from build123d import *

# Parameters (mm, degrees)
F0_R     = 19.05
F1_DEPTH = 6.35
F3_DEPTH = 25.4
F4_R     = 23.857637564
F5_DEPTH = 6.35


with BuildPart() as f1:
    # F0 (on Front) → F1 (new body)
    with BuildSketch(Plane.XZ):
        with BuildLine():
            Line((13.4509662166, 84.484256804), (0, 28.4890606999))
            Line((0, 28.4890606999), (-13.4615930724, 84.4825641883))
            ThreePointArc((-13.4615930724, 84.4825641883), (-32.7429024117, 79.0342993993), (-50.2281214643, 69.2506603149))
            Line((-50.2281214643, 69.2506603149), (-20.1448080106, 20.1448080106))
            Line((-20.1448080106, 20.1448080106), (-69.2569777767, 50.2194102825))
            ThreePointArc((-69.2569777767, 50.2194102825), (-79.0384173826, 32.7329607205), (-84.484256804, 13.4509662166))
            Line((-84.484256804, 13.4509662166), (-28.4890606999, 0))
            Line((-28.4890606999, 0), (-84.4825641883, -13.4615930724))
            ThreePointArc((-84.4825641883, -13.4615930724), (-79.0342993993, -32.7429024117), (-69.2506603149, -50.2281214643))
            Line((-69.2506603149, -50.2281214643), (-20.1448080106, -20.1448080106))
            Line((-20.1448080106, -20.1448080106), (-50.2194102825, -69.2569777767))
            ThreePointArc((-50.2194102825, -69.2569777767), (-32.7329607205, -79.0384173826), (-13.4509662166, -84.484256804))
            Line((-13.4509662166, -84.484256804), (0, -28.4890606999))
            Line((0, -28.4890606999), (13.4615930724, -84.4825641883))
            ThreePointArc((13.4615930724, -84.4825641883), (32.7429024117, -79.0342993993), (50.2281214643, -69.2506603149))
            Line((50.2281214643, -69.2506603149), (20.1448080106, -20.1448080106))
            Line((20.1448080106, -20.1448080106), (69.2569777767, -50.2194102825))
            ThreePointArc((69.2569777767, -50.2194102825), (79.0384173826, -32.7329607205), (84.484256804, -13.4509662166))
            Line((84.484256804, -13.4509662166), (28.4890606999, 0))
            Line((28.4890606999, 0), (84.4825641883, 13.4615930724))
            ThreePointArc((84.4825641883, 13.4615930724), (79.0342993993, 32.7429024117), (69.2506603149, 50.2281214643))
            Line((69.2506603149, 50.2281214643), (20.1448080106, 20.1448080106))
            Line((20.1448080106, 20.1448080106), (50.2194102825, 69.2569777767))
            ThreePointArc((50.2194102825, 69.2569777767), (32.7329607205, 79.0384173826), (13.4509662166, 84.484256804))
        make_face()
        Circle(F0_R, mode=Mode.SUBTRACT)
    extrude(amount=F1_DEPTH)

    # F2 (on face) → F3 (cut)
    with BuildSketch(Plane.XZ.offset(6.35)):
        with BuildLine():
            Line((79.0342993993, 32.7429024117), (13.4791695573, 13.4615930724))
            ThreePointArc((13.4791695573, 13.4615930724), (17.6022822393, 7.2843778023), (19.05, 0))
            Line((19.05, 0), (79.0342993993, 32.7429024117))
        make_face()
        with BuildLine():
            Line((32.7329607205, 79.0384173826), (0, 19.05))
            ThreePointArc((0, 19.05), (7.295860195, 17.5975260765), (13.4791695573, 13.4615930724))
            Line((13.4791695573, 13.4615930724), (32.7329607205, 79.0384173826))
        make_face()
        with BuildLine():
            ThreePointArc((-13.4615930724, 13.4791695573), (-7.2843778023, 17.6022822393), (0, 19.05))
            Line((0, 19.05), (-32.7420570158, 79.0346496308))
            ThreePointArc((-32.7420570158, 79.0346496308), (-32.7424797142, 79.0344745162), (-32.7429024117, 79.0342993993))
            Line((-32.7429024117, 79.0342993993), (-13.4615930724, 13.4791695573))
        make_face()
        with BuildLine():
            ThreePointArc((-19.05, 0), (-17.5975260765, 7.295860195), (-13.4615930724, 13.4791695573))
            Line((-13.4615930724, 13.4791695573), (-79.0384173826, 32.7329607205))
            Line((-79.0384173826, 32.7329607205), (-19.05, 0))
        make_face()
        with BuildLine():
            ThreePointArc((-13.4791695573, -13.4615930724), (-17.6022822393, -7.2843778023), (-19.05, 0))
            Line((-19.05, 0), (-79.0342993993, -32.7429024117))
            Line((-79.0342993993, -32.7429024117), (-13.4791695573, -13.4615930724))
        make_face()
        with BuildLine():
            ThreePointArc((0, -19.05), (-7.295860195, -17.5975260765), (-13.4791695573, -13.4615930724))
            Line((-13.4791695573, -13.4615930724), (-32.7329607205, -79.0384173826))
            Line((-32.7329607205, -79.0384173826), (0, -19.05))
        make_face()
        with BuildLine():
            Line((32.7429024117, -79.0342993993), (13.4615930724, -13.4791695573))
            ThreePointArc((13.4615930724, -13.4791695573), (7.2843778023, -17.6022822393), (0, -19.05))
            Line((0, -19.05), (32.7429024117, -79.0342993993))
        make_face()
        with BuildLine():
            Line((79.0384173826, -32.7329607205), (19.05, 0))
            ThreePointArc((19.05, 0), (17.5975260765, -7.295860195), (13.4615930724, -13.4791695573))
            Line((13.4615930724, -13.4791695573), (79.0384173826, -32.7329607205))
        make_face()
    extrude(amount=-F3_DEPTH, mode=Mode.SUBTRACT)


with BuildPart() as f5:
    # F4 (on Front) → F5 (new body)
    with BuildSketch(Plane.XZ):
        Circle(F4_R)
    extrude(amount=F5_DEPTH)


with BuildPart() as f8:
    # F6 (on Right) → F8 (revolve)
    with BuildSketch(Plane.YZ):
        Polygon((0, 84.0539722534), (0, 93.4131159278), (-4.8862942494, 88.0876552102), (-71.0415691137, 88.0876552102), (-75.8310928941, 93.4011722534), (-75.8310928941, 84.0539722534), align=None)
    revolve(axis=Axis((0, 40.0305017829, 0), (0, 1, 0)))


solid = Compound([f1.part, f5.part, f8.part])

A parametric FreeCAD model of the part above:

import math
import FreeCAD as App
import Part
import Sketcher

V = App.Vector
Q = App.Units.Quantity

doc = App.newDocument("Part")
body = doc.addObject("PartDesign::Body", "Body")
body.AllowCompound = True

# Sketch on XZ plane
sketch1 = doc.addObject("Sketcher::SketchObject", "Sketch")
body.addObject(sketch1)
sketch1.AttachmentSupport = (doc.XZ_Plane, [""])
sketch1.MapMode = "FlatFace"
sketch1.addGeometry(Part.LineSegment(V(13.450966, 84.484257, 0), V(0, 28.489061, 0)), False)
sketch1.addGeometry(Part.LineSegment(V(0, 28.489061, 0), V(-13.461593, 84.482564, 0)), False)
sketch1.addGeometry(Part.ArcOfCircle(Part.Circle(V(0, 0, 0), V(0, 0, 1), 85.548338), math.radians(99.053495), math.radians(125.953712)), False)
sketch1.addGeometry(Part.LineSegment(V(-50.228121, 69.25066, 0), V(-20.144808, 20.144808, 0)), False)
sketch1.addGeometry(Part.LineSegment(V(-20.144808, 20.144808, 0), V(-69.256978, 50.21941, 0)), False)
sketch1.addGeometry(Part.ArcOfCircle(Part.Circle(V(0, 0, 0), V(0, 0, 1), 85.548338), math.radians(144.053495), math.radians(170.953712)), False)
sketch1.addGeometry(Part.LineSegment(V(-84.484257, 13.450966, 0), V(-28.489061, 0, 0)), False)
sketch1.addGeometry(Part.LineSegment(V(-28.489061, 0, 0), V(-84.482564, -13.461593, 0)), False)
sketch1.addGeometry(Part.ArcOfCircle(Part.Circle(V(0, 0, 0), V(0, 0, 1), 85.548338), math.radians(-170.946505), math.radians(-144.046288)), False)
sketch1.addGeometry(Part.LineSegment(V(-69.25066, -50.228121, 0), V(-20.144808, -20.144808, 0)), False)
sketch1.addGeometry(Part.LineSegment(V(-20.144808, -20.144808, 0), V(-50.21941, -69.256978, 0)), False)
sketch1.addGeometry(Part.ArcOfCircle(Part.Circle(V(0, 0, 0), V(0, 0, 1), 85.548338), math.radians(-125.946505), math.radians(-99.046288)), False)
sketch1.addGeometry(Part.LineSegment(V(-13.450966, -84.484257, 0), V(0, -28.489061, 0)), False)
sketch1.addGeometry(Part.LineSegment(V(0, -28.489061, 0), V(13.461593, -84.482564, 0)), False)
sketch1.addGeometry(Part.ArcOfCircle(Part.Circle(V(0, 0, 0), V(0, 0, 1), 85.548338), math.radians(-80.946505), math.radians(-54.046288)), False)
sketch1.addGeometry(Part.LineSegment(V(50.228121, -69.25066, 0), V(20.144808, -20.144808, 0)), False)
sketch1.addGeometry(Part.LineSegment(V(20.144808, -20.144808, 0), V(69.256978, -50.21941, 0)), False)
sketch1.addGeometry(Part.ArcOfCircle(Part.Circle(V(0, 0, 0), V(0, 0, 1), 85.548338), math.radians(-35.946505), math.radians(-9.046288)), False)
sketch1.addGeometry(Part.LineSegment(V(84.484257, -13.450966, 0), V(28.489061, 0, 0)), False)
sketch1.addGeometry(Part.LineSegment(V(28.489061, 0, 0), V(84.482564, 13.461593, 0)), False)
sketch1.addGeometry(Part.ArcOfCircle(Part.Circle(V(0, 0, 0), V(0, 0, 1), 85.548338), math.radians(9.053495), math.radians(35.953712)), False)
sketch1.addGeometry(Part.LineSegment(V(69.25066, 50.228121, 0), V(20.144808, 20.144808, 0)), False)
sketch1.addGeometry(Part.LineSegment(V(20.144808, 20.144808, 0), V(50.21941, 69.256978, 0)), False)
sketch1.addGeometry(Part.ArcOfCircle(Part.Circle(V(0, 0, 0), V(0, 0, 1), 85.548338), math.radians(54.053495), math.radians(80.953712)), False)
sketch1.addGeometry(Part.Circle(V(0, 0, 0), V(0, 0, 1), 19.05), False)
sketch1.addConstraint(Sketcher.Constraint("Coincident", 0, 2, 1, 1))
sketch1.addConstraint(Sketcher.Constraint("Coincident", 1, 2, 2, 1))
sketch1.addConstraint(Sketcher.Constraint("Coincident", 2, 2, 3, 1))
sketch1.addConstraint(Sketcher.Constraint("Coincident", 3, 2, 4, 1))
sketch1.addConstraint(Sketcher.Constraint("Coincident", 4, 2, 5, 1))
sketch1.addConstraint(Sketcher.Constraint("Coincident", 5, 2, 6, 1))
sketch1.addConstraint(Sketcher.Constraint("Coincident", 6, 2, 7, 1))
sketch1.addConstraint(Sketcher.Constraint("Coincident", 7, 2, 8, 1))
sketch1.addConstraint(Sketcher.Constraint("Coincident", 8, 2, 9, 1))
sketch1.addConstraint(Sketcher.Constraint("Coincident", 9, 2, 10, 1))
sketch1.addConstraint(Sketcher.Constraint("Coincident", 10, 2, 11, 1))
sketch1.addConstraint(Sketcher.Constraint("Coincident", 11, 2, 12, 1))
sketch1.addConstraint(Sketcher.Constraint("Coincident", 12, 2, 13, 1))
sketch1.addConstraint(Sketcher.Constraint("Coincident", 13, 2, 14, 1))
sketch1.addConstraint(Sketcher.Constraint("Coincident", 14, 2, 15, 1))
sketch1.addConstraint(Sketcher.Constraint("Coincident", 15, 2, 16, 1))
sketch1.addConstraint(Sketcher.Constraint("Coincident", 16, 2, 17, 1))
sketch1.addConstraint(Sketcher.Constraint("Coincident", 17, 2, 18, 1))
sketch1.addConstraint(Sketcher.Constraint("Coincident", 18, 2, 19, 1))
sketch1.addConstraint(Sketcher.Constraint("Coincident", 19, 2, 20, 1))
sketch1.addConstraint(Sketcher.Constraint("Coincident", 20, 2, 21, 1))
sketch1.addConstraint(Sketcher.Constraint("Coincident", 21, 2, 22, 1))
sketch1.addConstraint(Sketcher.Constraint("Coincident", 22, 2, 23, 1))
sketch1.addConstraint(Sketcher.Constraint("Coincident", 23, 2, 0, 1))
sketch1.addConstraint(Sketcher.Constraint("Coincident", 2, 3, -1, 1))
sketch1.addConstraint(Sketcher.Constraint("Coincident", 5, 3, -1, 1))
sketch1.addConstraint(Sketcher.Constraint("Coincident", 8, 3, -1, 1))
sketch1.addConstraint(Sketcher.Constraint("Coincident", 11, 3, -1, 1))
sketch1.addConstraint(Sketcher.Constraint("Coincident", 14, 3, -1, 1))
sketch1.addConstraint(Sketcher.Constraint("Coincident", 17, 3, -1, 1))
sketch1.addConstraint(Sketcher.Constraint("Coincident", 20, 3, -1, 1))
sketch1.addConstraint(Sketcher.Constraint("Coincident", 23, 3, -1, 1))
sketch1.addConstraint(Sketcher.Constraint("Coincident", 24, 3, -1, 1))
sketch1.addConstraint(Sketcher.Constraint("Equal", 2, 5))
sketch1.addConstraint(Sketcher.Constraint("Equal", 5, 8))
sketch1.addConstraint(Sketcher.Constraint("Equal", 8, 11))
sketch1.addConstraint(Sketcher.Constraint("Equal", 11, 14))
sketch1.addConstraint(Sketcher.Constraint("Equal", 14, 17))
sketch1.addConstraint(Sketcher.Constraint("Equal", 17, 20))
sketch1.addConstraint(Sketcher.Constraint("Equal", 20, 23))
sketch1.addConstraint(Sketcher.Constraint("Symmetric", 0, 2, 12, 2, -1, 1))
sketch1.addConstraint(Sketcher.Constraint("Symmetric", 3, 2, 15, 2, -1, 1))
sketch1.addConstraint(Sketcher.Constraint("Symmetric", 6, 2, 18, 2, -1, 1))
sketch1.addConstraint(Sketcher.Constraint("Symmetric", 9, 2, 21, 2, -1, 1))
sketch1.addConstraint(Sketcher.Constraint("Symmetric", 9, 2, 15, 2, -2))
sketch1.addConstraint(Sketcher.Constraint("PointOnObject", 0, 2, -2))
sketch1.addConstraint(Sketcher.Constraint("PointOnObject", 6, 2, -1))
sketch1.addConstraint(Sketcher.Constraint("Perpendicular", 0, 6))
sketch1.addConstraint(Sketcher.Constraint("Perpendicular", 1, 7))
sketch1.addConstraint(Sketcher.Constraint("Perpendicular", 3, 9))
sketch1.addConstraint(Sketcher.Constraint("Perpendicular", 4, 10))
sketch1.addConstraint(Sketcher.Constraint("Perpendicular", 6, 12))
sketch1.addConstraint(Sketcher.Constraint("Perpendicular", 7, 13))
sketch1.addConstraint(Sketcher.Constraint("Perpendicular", 9, 15))
sketch1.addConstraint(Sketcher.Constraint("Perpendicular", 10, 16))
sketch1.addConstraint(Sketcher.Constraint("Perpendicular", 12, 18))
sketch1.addConstraint(Sketcher.Constraint("Perpendicular", 13, 19))
sketch1.addConstraint(Sketcher.Constraint("Perpendicular", 15, 21))
sketch1.addConstraint(Sketcher.Constraint("Perpendicular", 16, 22))
sketch1.addConstraint(Sketcher.Constraint("Equal", 0, 3))
sketch1.addConstraint(Sketcher.Constraint("Equal", 1, 4))
sketch1.addConstraint(Sketcher.Constraint("Equal", 3, 6))
sketch1.addConstraint(Sketcher.Constraint("Equal", 6, 9))
sketch1.addConstraint(Sketcher.Constraint("Diameter", 24, Q("1.5 in")))
sketch1.addConstraint(Sketcher.Constraint("Radius", 2, 85.548338))
sketch1.addConstraint(Sketcher.Constraint("DistanceY", 0, 2, 2, 2, 40.7616))
sketch1.addConstraint(Sketcher.Constraint("DistanceY", 7, 2, 3, 2, 33.606401))
sketch1.addConstraint(Sketcher.Constraint("Distance", 0, 57.588111))
sketch1.addConstraint(Sketcher.Constraint("DistanceY", -1, 1, 0, 2, 28.489061))
pad1 = doc.addObject("PartDesign::Pad", "Pad")
body.addObject(pad1)
pad1.Profile = sketch1
pad1.Length = Q("0.25 in")

# Sketch on XZ plane
sketch2 = doc.addObject("Sketcher::SketchObject", "Sketch001")
body.addObject(sketch2)
sketch2.AttachmentSupport = (doc.XZ_Plane, [""])
sketch2.MapMode = "FlatFace"
sketch2.AttachmentOffset = App.Placement(V(0, 0, 0.25 * 25.4), App.Rotation())
sketch2.addGeometry(Part.LineSegment(V(79.034299, 32.742902, 0), V(13.47917, 13.461593, 0)), False)
sketch2.addGeometry(Part.ArcOfCircle(Part.Circle(V(0, 0, 0), V(0, 0, 1), 19.05), math.radians(0), math.radians(44.96262)), False)
sketch2.addGeometry(Part.LineSegment(V(19.05, 0, 0), V(79.034299, 32.742902, 0)), False)
sketch2.addGeometry(Part.LineSegment(V(32.732961, 79.038417, 0), V(0, 19.05, 0)), False)
sketch2.addGeometry(Part.ArcOfCircle(Part.Circle(V(0, 0, 0), V(0, 0, 1), 19.05), math.radians(44.96262), math.radians(90)), False)
sketch2.addGeometry(Part.LineSegment(V(13.47917, 13.461593, 0), V(32.732961, 79.038417, 0)), False)
sketch2.addGeometry(Part.ArcOfCircle(Part.Circle(V(0, 0, 0), V(0, 0, 1), 19.05), math.radians(90), math.radians(134.96262)), False)
sketch2.addGeometry(Part.LineSegment(V(0, 19.05, 0), V(-32.742057, 79.03465, 0)), False)
sketch2.addGeometry(Part.ArcOfCircle(Part.Circle(V(-0.295737, 0.713868, 0), V(0, 0, 1), 84.775637), math.radians(112.502991), math.radians(112.50361)), False)
sketch2.addGeometry(Part.LineSegment(V(-32.742902, 79.034299, 0), V(-13.461593, 13.47917, 0)), False)
sketch2.addGeometry(Part.ArcOfCircle(Part.Circle(V(0, 0, 0), V(0, 0, 1), 19.05), math.radians(134.96262), math.radians(180)), False)
sketch2.addGeometry(Part.LineSegment(V(-13.461593, 13.47917, 0), V(-79.038417, 32.732961, 0)), False)
sketch2.addGeometry(Part.LineSegment(V(-79.038417, 32.732961, 0), V(-19.05, 0, 0)), False)
sketch2.addGeometry(Part.ArcOfCircle(Part.Circle(V(0, 0, 0), V(0, 0, 1), 19.05), math.radians(180), math.radians(224.96262)), False)
sketch2.addGeometry(Part.LineSegment(V(-19.05, 0, 0), V(-79.034299, -32.742902, 0)), False)
sketch2.addGeometry(Part.LineSegment(V(-79.034299, -32.742902, 0), V(-13.47917, -13.461593, 0)), False)
sketch2.addGeometry(Part.ArcOfCircle(Part.Circle(V(0, 0, 0), V(0, 0, 1), 19.05), math.radians(-135.03738), math.radians(-90)), False)
sketch2.addGeometry(Part.LineSegment(V(-13.47917, -13.461593, 0), V(-32.732961, -79.038417, 0)), False)
sketch2.addGeometry(Part.LineSegment(V(-32.732961, -79.038417, 0), V(0, -19.05, 0)), False)
sketch2.addGeometry(Part.LineSegment(V(32.742902, -79.034299, 0), V(13.461593, -13.47917, 0)), False)
sketch2.addGeometry(Part.ArcOfCircle(Part.Circle(V(0, 0, 0), V(0, 0, 1), 19.05), math.radians(-90), math.radians(-45.03738)), False)
sketch2.addGeometry(Part.LineSegment(V(0, -19.05, 0), V(32.742902, -79.034299, 0)), False)
sketch2.addGeometry(Part.LineSegment(V(79.038417, -32.732961, 0), V(19.05, 0, 0)), False)
sketch2.addGeometry(Part.ArcOfCircle(Part.Circle(V(0, 0, 0), V(0, 0, 1), 19.05), math.radians(-45.03738), math.radians(0)), False)
sketch2.addGeometry(Part.LineSegment(V(13.461593, -13.47917, 0), V(79.038417, -32.732961, 0)), False)
sketch2.addConstraint(Sketcher.Constraint("Coincident", 0, 2, 1, 2))
sketch2.addConstraint(Sketcher.Constraint("Coincident", 1, 1, 2, 1))
sketch2.addConstraint(Sketcher.Constraint("Coincident", 2, 2, 0, 1))
sketch2.addConstraint(Sketcher.Constraint("Coincident", 3, 2, 4, 2))
sketch2.addConstraint(Sketcher.Constraint("Coincident", 4, 1, 5, 1))
sketch2.addConstraint(Sketcher.Constraint("Coincident", 5, 2, 3, 1))
sketch2.addConstraint(Sketcher.Constraint("Coincident", 6, 1, 7, 1))
sketch2.addConstraint(Sketcher.Constraint("Coincident", 7, 2, 8, 1))
sketch2.addConstraint(Sketcher.Constraint("Coincident", 8, 2, 9, 1))
sketch2.addConstraint(Sketcher.Constraint("Coincident", 9, 2, 6, 2))
sketch2.addConstraint(Sketcher.Constraint("Coincident", 10, 1, 11, 1))
sketch2.addConstraint(Sketcher.Constraint("Coincident", 11, 2, 12, 1))
sketch2.addConstraint(Sketcher.Constraint("Coincident", 12, 2, 10, 2))
sketch2.addConstraint(Sketcher.Constraint("Coincident", 13, 1, 14, 1))
sketch2.addConstraint(Sketcher.Constraint("Coincident", 14, 2, 15, 1))
sketch2.addConstraint(Sketcher.Constraint("Coincident", 15, 2, 13, 2))
sketch2.addConstraint(Sketcher.Constraint("Coincident", 16, 1, 17, 1))
sketch2.addConstraint(Sketcher.Constraint("Coincident", 17, 2, 18, 1))
sketch2.addConstraint(Sketcher.Constraint("Coincident", 18, 2, 16, 2))
sketch2.addConstraint(Sketcher.Constraint("Coincident", 19, 2, 20, 2))
sketch2.addConstraint(Sketcher.Constraint("Coincident", 20, 1, 21, 1))
sketch2.addConstraint(Sketcher.Constraint("Coincident", 21, 2, 19, 1))
sketch2.addConstraint(Sketcher.Constraint("Coincident", 22, 2, 23, 2))
sketch2.addConstraint(Sketcher.Constraint("Coincident", 23, 1, 24, 1))
sketch2.addConstraint(Sketcher.Constraint("Coincident", 24, 2, 22, 1))
sketch2.addConstraint(Sketcher.Constraint("Coincident", 1, 3, -1, 1))
sketch2.addConstraint(Sketcher.Constraint("Coincident", 4, 3, -1, 1))
sketch2.addConstraint(Sketcher.Constraint("Coincident", 6, 3, -1, 1))
sketch2.addConstraint(Sketcher.Constraint("Coincident", 10, 3, -1, 1))
sketch2.addConstraint(Sketcher.Constraint("Coincident", 13, 3, -1, 1))
sketch2.addConstraint(Sketcher.Constraint("Coincident", 16, 3, -1, 1))
sketch2.addConstraint(Sketcher.Constraint("Coincident", 20, 3, -1, 1))
sketch2.addConstraint(Sketcher.Constraint("Coincident", 23, 3, -1, 1))
sketch2.addConstraint(Sketcher.Constraint("Coincident", 4, 1, 0, 2))
sketch2.addConstraint(Sketcher.Constraint("Coincident", 6, 1, 3, 2))
sketch2.addConstraint(Sketcher.Constraint("Coincident", 10, 1, 9, 2))
sketch2.addConstraint(Sketcher.Constraint("Coincident", 13, 1, 12, 2))
sketch2.addConstraint(Sketcher.Constraint("Coincident", 16, 1, 15, 2))
sketch2.addConstraint(Sketcher.Constraint("Coincident", 20, 1, 18, 2))
sketch2.addConstraint(Sketcher.Constraint("Coincident", 22, 2, 1, 1))
sketch2.addConstraint(Sketcher.Constraint("Symmetric", 2, 2, 14, 2, -1, 1))
sketch2.addConstraint(Sketcher.Constraint("Symmetric", 5, 2, 17, 2, -1, 1))
sketch2.addConstraint(Sketcher.Constraint("Symmetric", 8, 2, 21, 2, -1, 1))
sketch2.addConstraint(Sketcher.Constraint("Symmetric", 11, 2, 24, 2, -1, 1))
sketch2.addConstraint(Sketcher.Constraint("PointOnObject", 1, 1, -1))
sketch2.addConstraint(Sketcher.Constraint("PointOnObject", 3, 2, -2))
sketch2.addConstraint(Sketcher.Constraint("PointOnObject", 12, 2, -1))
sketch2.addConstraint(Sketcher.Constraint("PointOnObject", 18, 2, -2))
sketch2.addConstraint(Sketcher.Constraint("Perpendicular", 0, 9))
sketch2.addConstraint(Sketcher.Constraint("Perpendicular", 5, 11))
sketch2.addConstraint(Sketcher.Constraint("Perpendicular", 3, 12))
sketch2.addConstraint(Sketcher.Constraint("Perpendicular", 9, 15))
sketch2.addConstraint(Sketcher.Constraint("Perpendicular", 15, 19))
sketch2.addConstraint(Sketcher.Constraint("Perpendicular", 14, 21))
sketch2.addConstraint(Sketcher.Constraint("Perpendicular", 17, 24))
sketch2.addConstraint(Sketcher.Constraint("Equal", 0, 9))
sketch2.addConstraint(Sketcher.Constraint("Radius", 1, Q("0.75 in")))
sketch2.addConstraint(Sketcher.Constraint("Radius", 8, 84.775637))
sketch2.addConstraint(Sketcher.Constraint("DistanceX", -1, 1, 2, 2, 79.034299))
sketch2.addConstraint(Sketcher.Constraint("Distance", 5, 68.344922))
sketch2.addConstraint(Sketcher.Constraint("DistanceX", -1, 1, 0, 2, 13.47917))
sketch2.addConstraint(Sketcher.Constraint("DistanceX", -1, 1, 5, 2, 32.732961))
sketch2.addConstraint(Sketcher.Constraint("DistanceY", -1, 1, 7, 2, 79.03465))
sketch2.addConstraint(Sketcher.Constraint("DistanceY", 0, 2, 2, 2, 19.281309))
sketch2.addConstraint(Sketcher.Constraint("DistanceX", 8, 3, -1, 1, 0.295737))
pocket1 = doc.addObject("PartDesign::Pocket", "Pocket")
body.addObject(pocket1)
pocket1.Profile = sketch2
pocket1.Length = Q("1 in")
body2 = doc.addObject("PartDesign::Body", "Body001")

# Sketch on XZ plane
sketch3 = doc.addObject("Sketcher::SketchObject", "Sketch002")
body2.addObject(sketch3)
sketch3.AttachmentSupport = (doc.getObject("XZ_Plane001"), [""])
sketch3.MapMode = "FlatFace"
sketch3.addGeometry(Part.Circle(V(0, 0, 0), V(0, 0, 1), 23.857638), False)
sketch3.addConstraint(Sketcher.Constraint("Coincident", 0, 3, -1, 1))
sketch3.addConstraint(Sketcher.Constraint("Diameter", 0, 47.715275))
pad2 = doc.addObject("PartDesign::Pad", "Pad001")
body2.addObject(pad2)
pad2.Profile = sketch3
pad2.Length = Q("0.25 in")
body3 = doc.addObject("PartDesign::Body", "Body002")

# Sketch on YZ plane
sketch4 = doc.addObject("Sketcher::SketchObject", "Sketch003")
body3.addObject(sketch4)
sketch4.AttachmentSupport = (doc.getObject("YZ_Plane002"), [""])
sketch4.MapMode = "FlatFace"
sketch4.addGeometry(Part.LineSegment(V(0, 84.053972, 0), V(0, 93.413116, 0)), False)
sketch4.addGeometry(Part.LineSegment(V(0, 93.413116, 0), V(-4.886294, 88.087655, 0)), False)
sketch4.addGeometry(Part.LineSegment(V(-4.886294, 88.087655, 0), V(-71.041569, 88.087655, 0)), False)
sketch4.addGeometry(Part.LineSegment(V(-71.041569, 88.087655, 0), V(-75.831093, 93.401172, 0)), False)
sketch4.addGeometry(Part.LineSegment(V(-75.831093, 93.401172, 0), V(-75.831093, 84.053972, 0)), False)
sketch4.addGeometry(Part.LineSegment(V(-75.831093, 84.053972, 0), V(0, 84.053972, 0)), False)
sketch4.addConstraint(Sketcher.Constraint("Coincident", 0, 2, 1, 1))
sketch4.addConstraint(Sketcher.Constraint("Coincident", 1, 2, 2, 1))
sketch4.addConstraint(Sketcher.Constraint("Coincident", 2, 2, 3, 1))
sketch4.addConstraint(Sketcher.Constraint("Coincident", 3, 2, 4, 1))
sketch4.addConstraint(Sketcher.Constraint("Coincident", 4, 2, 5, 1))
sketch4.addConstraint(Sketcher.Constraint("Coincident", 5, 2, 0, 1))
sketch4.addConstraint(Sketcher.Constraint("Vertical", 0))
sketch4.addConstraint(Sketcher.Constraint("Horizontal", 2))
sketch4.addConstraint(Sketcher.Constraint("Vertical", 4))
sketch4.addConstraint(Sketcher.Constraint("Horizontal", 5))
sketch4.addConstraint(Sketcher.Constraint("PointOnObject", 0, 2, -2))
sketch4.addConstraint(Sketcher.Constraint("DistanceY", 4, 2, 4, 1, Q("0.368 in")))
sketch4.addConstraint(Sketcher.Constraint("DistanceX", 3, 2, 1, 2, 70.944799))
sketch4.addConstraint(Sketcher.Constraint("Distance", 3, 7.153531))
sketch4.addConstraint(Sketcher.Constraint("DistanceX", 2, 2, 2, 1, 66.155275))
sketch4.addConstraint(Sketcher.Constraint("DistanceX", 5, 1, 5, 2, 75.831093))
sketch4.addConstraint(Sketcher.Constraint("DistanceY", 0, 1, 0, 2, 9.359144))
sketch4.addConstraint(Sketcher.Constraint("DistanceY", -1, 1, 0, 2, 93.413116))
revolution = doc.addObject("PartDesign::Revolution", "Revolution")
body3.addObject(revolution)
revolution.Profile = sketch4
revolution.ReferenceAxis = (sketch4, ["H_Axis"])
revolution.Angle = 360

doc.recompute()
